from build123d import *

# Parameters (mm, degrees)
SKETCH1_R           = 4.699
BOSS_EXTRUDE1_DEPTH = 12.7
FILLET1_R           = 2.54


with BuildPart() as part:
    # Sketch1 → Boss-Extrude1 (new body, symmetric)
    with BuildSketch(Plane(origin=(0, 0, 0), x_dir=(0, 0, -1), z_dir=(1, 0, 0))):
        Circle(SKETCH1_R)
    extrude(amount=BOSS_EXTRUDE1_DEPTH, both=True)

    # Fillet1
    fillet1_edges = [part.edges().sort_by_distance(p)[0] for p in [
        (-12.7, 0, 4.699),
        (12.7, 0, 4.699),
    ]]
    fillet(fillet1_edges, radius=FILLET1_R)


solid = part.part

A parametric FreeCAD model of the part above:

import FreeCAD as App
import Part
import Sketcher
Q = App.Units.Quantity


def edges_at(feature, points):
    """Names of the edges that pass closest to the given points."""
    edges = feature.Shape.Edges
    near = lambda p: min(range(len(edges)), key=lambda i: edges[i].distToShape(Part.Vertex(*p))[0])
    return sorted({f"Edge{near(p) + 1}" for p in points})

doc = App.newDocument("Part")
body = doc.addObject("PartDesign::Body", "Body")

sketch1 = doc.addObject("Sketcher::SketchObject", "Sketch")
body.addObject(sketch1)
sketch1.AttachmentSupport = (doc.YZ_Plane, [""])
sketch1.MapMode = "FlatFace"
sketch1.addGeometry(Part.Circle(App.Vector(0, 0, 0), App.Vector(0, 0, 1), 4.7), False)
sketch1.addConstraint(Sketcher.Constraint("Coincident", 0, 3, -1, 1))
sketch1.addConstraint(Sketcher.Constraint("Diameter", 0, Q("0.37 in")))
pad1 = doc.addObject("PartDesign::Pad", "Pad")
body.addObject(pad1)
pad1.Profile = sketch1
pad1.Length = Q("1 in")
pad1.Midplane = True
doc.recompute()

fillet = doc.addObject("PartDesign::Fillet", "Fillet")
body.addObject(fillet)
fillet.Base = (pad1, edges_at(pad1, [(-12.7, 0, 4.699), (12.7, 0, 4.699)]))
fillet.Radius = Q("0.1 in")

doc.recompute()
